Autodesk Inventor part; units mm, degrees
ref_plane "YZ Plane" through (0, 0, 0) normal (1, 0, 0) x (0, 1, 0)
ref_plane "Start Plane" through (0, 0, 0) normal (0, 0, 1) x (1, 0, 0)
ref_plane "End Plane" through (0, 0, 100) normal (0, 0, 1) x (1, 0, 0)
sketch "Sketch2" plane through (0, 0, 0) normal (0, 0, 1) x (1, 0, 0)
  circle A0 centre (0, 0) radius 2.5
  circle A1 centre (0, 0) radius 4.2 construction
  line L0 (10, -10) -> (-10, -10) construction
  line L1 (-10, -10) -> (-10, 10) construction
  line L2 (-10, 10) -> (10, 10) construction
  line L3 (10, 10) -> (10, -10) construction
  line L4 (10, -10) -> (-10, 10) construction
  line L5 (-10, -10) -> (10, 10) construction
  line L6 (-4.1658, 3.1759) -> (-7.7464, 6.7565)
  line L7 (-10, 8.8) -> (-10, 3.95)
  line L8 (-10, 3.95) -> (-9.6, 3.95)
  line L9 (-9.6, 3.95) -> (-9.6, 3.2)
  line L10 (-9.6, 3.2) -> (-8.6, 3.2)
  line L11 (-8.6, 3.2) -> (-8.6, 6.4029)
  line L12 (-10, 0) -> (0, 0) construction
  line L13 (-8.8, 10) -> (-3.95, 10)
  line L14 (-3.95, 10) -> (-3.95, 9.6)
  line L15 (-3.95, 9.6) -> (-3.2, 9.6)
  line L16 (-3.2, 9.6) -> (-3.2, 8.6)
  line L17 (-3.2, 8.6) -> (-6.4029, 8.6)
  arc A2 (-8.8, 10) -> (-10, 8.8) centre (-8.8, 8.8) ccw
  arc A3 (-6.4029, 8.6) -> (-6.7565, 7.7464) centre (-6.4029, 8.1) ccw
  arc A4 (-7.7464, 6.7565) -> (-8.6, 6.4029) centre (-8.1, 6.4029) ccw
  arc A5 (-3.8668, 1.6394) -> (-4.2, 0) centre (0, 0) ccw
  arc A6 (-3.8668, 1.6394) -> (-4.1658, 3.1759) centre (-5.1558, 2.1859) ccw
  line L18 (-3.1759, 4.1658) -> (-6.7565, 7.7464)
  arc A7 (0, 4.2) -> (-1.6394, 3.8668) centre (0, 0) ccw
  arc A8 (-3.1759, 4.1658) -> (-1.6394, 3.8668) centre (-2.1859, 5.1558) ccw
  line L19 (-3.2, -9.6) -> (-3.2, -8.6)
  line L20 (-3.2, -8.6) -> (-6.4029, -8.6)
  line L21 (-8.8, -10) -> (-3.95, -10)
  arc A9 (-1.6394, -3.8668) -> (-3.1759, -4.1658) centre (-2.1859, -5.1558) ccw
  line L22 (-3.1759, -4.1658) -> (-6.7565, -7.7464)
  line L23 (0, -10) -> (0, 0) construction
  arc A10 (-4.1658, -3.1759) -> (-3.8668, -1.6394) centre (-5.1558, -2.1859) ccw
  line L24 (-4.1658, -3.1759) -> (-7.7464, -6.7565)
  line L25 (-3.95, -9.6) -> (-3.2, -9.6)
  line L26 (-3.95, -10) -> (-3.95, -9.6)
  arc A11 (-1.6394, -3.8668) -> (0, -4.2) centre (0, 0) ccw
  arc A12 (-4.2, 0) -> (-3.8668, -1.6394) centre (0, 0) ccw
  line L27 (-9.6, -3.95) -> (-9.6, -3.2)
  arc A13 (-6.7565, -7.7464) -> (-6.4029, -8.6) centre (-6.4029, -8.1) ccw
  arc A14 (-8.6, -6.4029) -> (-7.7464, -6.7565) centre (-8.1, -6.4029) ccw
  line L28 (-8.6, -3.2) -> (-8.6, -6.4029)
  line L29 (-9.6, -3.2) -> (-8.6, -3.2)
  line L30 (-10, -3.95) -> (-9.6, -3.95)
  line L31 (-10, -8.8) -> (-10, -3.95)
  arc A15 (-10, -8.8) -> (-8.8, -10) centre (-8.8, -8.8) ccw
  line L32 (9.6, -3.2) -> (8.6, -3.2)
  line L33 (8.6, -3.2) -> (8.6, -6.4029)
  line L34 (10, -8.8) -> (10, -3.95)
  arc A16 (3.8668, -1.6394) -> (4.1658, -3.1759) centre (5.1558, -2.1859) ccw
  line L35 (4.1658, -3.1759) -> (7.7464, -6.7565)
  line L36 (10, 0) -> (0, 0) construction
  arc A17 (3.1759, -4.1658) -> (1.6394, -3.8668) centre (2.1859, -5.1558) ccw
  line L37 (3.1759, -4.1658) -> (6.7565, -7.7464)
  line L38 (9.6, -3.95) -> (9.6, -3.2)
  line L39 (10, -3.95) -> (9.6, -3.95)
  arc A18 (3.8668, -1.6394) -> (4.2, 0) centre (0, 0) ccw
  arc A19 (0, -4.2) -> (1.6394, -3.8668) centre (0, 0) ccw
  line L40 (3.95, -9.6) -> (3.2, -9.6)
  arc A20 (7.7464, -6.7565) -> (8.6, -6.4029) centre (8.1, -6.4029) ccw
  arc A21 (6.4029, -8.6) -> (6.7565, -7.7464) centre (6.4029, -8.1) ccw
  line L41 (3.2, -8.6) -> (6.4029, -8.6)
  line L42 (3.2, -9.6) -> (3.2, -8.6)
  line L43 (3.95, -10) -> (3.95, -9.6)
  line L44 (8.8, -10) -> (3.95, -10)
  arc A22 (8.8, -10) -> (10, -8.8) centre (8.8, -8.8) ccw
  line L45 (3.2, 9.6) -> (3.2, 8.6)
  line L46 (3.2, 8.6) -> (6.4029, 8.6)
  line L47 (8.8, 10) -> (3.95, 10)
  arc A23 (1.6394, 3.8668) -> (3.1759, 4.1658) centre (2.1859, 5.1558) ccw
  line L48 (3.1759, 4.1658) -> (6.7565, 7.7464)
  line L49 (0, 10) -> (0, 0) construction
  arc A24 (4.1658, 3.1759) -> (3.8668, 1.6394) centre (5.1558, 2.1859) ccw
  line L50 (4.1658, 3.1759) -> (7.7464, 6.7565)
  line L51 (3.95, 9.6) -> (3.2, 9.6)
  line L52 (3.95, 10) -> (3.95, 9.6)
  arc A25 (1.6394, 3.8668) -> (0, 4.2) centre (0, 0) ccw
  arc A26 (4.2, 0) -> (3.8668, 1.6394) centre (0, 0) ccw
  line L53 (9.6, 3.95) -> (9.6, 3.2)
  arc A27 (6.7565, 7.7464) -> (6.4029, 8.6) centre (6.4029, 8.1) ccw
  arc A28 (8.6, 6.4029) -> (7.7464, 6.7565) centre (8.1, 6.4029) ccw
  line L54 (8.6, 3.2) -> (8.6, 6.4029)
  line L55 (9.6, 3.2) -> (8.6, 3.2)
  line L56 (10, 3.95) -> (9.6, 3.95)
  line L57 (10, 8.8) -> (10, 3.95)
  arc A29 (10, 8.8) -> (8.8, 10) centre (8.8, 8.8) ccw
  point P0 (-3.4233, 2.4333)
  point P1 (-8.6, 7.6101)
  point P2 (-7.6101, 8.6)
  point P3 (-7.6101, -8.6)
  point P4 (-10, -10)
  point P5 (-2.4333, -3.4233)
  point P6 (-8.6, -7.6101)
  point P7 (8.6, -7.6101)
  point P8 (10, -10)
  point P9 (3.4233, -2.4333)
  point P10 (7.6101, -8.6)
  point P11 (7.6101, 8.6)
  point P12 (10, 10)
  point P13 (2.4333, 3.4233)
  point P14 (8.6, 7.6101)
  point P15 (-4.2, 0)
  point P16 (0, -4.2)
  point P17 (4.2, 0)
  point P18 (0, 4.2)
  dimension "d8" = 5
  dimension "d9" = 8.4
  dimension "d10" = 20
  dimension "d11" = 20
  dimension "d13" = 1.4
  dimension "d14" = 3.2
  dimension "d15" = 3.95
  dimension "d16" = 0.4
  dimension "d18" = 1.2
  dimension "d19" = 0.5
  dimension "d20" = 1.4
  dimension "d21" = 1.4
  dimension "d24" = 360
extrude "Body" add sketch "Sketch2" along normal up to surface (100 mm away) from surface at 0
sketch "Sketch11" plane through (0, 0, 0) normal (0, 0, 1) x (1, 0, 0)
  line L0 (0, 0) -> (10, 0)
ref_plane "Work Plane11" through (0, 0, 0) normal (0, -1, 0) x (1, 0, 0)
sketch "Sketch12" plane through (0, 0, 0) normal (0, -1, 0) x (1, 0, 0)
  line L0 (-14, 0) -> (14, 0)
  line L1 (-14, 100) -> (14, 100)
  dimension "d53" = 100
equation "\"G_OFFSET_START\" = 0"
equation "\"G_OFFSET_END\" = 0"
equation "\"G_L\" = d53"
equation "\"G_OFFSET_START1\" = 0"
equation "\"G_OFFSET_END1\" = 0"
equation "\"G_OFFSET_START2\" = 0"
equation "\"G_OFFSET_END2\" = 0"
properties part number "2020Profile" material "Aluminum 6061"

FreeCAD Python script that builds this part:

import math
import FreeCAD as App
import Part
import Sketcher

doc = App.newDocument("Part")
params = doc.addObject("Spreadsheet::Sheet", "Params")
for row, (alias, value) in enumerate([
    ("sketch1_diameter", "5 mm"),
    ("sketch1_radius", "1.4 mm"),
    ("sketch1_radius2", "4.2 mm"),
    ("sketch1_radius3", "0.5 mm"),
    ("sketch1_radius4", "1.2 mm"),
    ("pad1_length", "100 mm"),
], start=1):
    params.set(f"A{row}", alias)
    params.set(f"B{row}", "=" + value)
    params.setAlias(f"B{row}", alias)

body = doc.addObject("PartDesign::Body", "Body")

# Sketch on XY plane
sketch1 = doc.addObject("Sketcher::SketchObject", "Sketch")
body.addObject(sketch1)
sketch1.AttachmentSupport = (doc.XY_Plane, [""])
sketch1.MapMode = "FlatFace"
sketch1.addGeometry([
    Part.LineSegment(App.Vector(-7.7464, 6.7565, 0), App.Vector(-4.1658, 3.1759, 0)),  # 0
    Part.ArcOfCircle(Part.Circle(App.Vector(-5.1558, 2.1859, 0), App.Vector(0, 0, 1), 1.400065), math.radians(-22.975588), math.radians(45)),  # 1
    Part.ArcOfCircle(Part.Circle(App.Vector(0, 0, 0), App.Vector(0, 0, 1), 4.2), math.radians(157.024603), math.radians(180)),  # 2
    Part.ArcOfCircle(Part.Circle(App.Vector(0, 0, 0), App.Vector(0, 0, 1), 4.199973), math.radians(180), math.radians(202.975397)),  # 3
    Part.ArcOfCircle(Part.Circle(App.Vector(-5.1558, -2.1859, 0), App.Vector(0, 0, 1), 1.400071), math.radians(-45), math.radians(22.975588)),  # 4
    Part.LineSegment(App.Vector(-4.1658, -3.1759, 0), App.Vector(-7.7464, -6.7565, 0)),  # 5
    Part.ArcOfCircle(Part.Circle(App.Vector(-8.1, -6.4029, 0), App.Vector(0, 0, 1), 0.5), math.radians(180), math.radians(315)),  # 6
    Part.LineSegment(App.Vector(-8.6, -6.4029, 0), App.Vector(-8.6, -3.2, 0)),  # 7
    Part.LineSegment(App.Vector(-8.6, -3.2, 0), App.Vector(-9.6, -3.2, 0)),  # 8
    Part.LineSegment(App.Vector(-9.6, -3.2, 0), App.Vector(-9.6, -3.95, 0)),  # 9
    Part.LineSegment(App.Vector(-9.6, -3.95, 0), App.Vector(-10, -3.95, 0)),  # 10
    Part.LineSegment(App.Vector(-10, -3.95, 0), App.Vector(-10, -8.8, 0)),  # 11
    Part.ArcOfCircle(Part.Circle(App.Vector(-8.8, -8.8, 0), App.Vector(0, 0, 1), 1.2), math.radians(180), math.radians(270)),  # 12
    Part.LineSegment(App.Vector(-8.8, -10, 0), App.Vector(-3.95, -10, 0)),  # 13
    Part.LineSegment(App.Vector(-3.95, -10, 0), App.Vector(-3.95, -9.6, 0)),  # 14
    Part.LineSegment(App.Vector(-3.95, -9.6, 0), App.Vector(-3.2, -9.6, 0)),  # 15
    Part.LineSegment(App.Vector(-3.2, -9.6, 0), App.Vector(-3.2, -8.6, 0)),  # 16
    Part.LineSegment(App.Vector(-3.2, -8.6, 0), App.Vector(-6.4029, -8.6, 0)),  # 17
    Part.ArcOfCircle(Part.Circle(App.Vector(-6.4029, -8.1, 0), App.Vector(0, 0, 1), 0.500066), math.radians(135), math.radians(270)),  # 18
    Part.LineSegment(App.Vector(-6.7565, -7.7464, 0), App.Vector(-3.1759, -4.1658, 0)),  # 19
    Part.ArcOfCircle(Part.Circle(App.Vector(-2.1859, -5.1558, 0), App.Vector(0, 0, 1), 1.400065), math.radians(67.024412), math.radians(135)),  # 20
    Part.ArcOfCircle(Part.Circle(App.Vector(0, 0, 0), App.Vector(0, 0, 1), 4.2), math.radians(-112.975397), math.radians(-90)),  # 21
    Part.ArcOfCircle(Part.Circle(App.Vector(0, 0, 0), App.Vector(0, 0, 1), 4.199973), math.radians(-90), math.radians(-67.024603)),  # 22
    Part.ArcOfCircle(Part.Circle(App.Vector(2.1859, -5.1558, 0), App.Vector(0, 0, 1), 1.400071), math.radians(45), math.radians(112.975588)),  # 23
    Part.LineSegment(App.Vector(3.1759, -4.1658, 0), App.Vector(6.7565, -7.7464, 0)),  # 24
    Part.ArcOfCircle(Part.Circle(App.Vector(6.4029, -8.1, 0), App.Vector(0, 0, 1), 0.5), math.radians(-90), math.radians(45)),  # 25
    Part.LineSegment(App.Vector(6.4029, -8.6, 0), App.Vector(3.2, -8.6, 0)),  # 26
    Part.LineSegment(App.Vector(3.2, -8.6, 0), App.Vector(3.2, -9.6, 0)),  # 27
    Part.LineSegment(App.Vector(3.2, -9.6, 0), App.Vector(3.95, -9.6, 0)),  # 28
    Part.LineSegment(App.Vector(3.95, -9.6, 0), App.Vector(3.95, -10, 0)),  # 29
    Part.LineSegment(App.Vector(3.95, -10, 0), App.Vector(8.8, -10, 0)),  # 30
    Part.ArcOfCircle(Part.Circle(App.Vector(8.8, -8.8, 0), App.Vector(0, 0, 1), 1.2), math.radians(-90), math.radians(0)),  # 31
    Part.LineSegment(App.Vector(10, -8.8, 0), App.Vector(10, -3.95, 0)),  # 32
    Part.LineSegment(App.Vector(10, -3.95, 0), App.Vector(9.6, -3.95, 0)),  # 33
    Part.LineSegment(App.Vector(9.6, -3.95, 0), App.Vector(9.6, -3.2, 0)),  # 34
    Part.LineSegment(App.Vector(9.6, -3.2, 0), App.Vector(8.6, -3.2, 0)),  # 35
    Part.LineSegment(App.Vector(8.6, -3.2, 0), App.Vector(8.6, -6.4029, 0)),  # 36
    Part.ArcOfCircle(Part.Circle(App.Vector(8.1, -6.4029, 0), App.Vector(0, 0, 1), 0.500066), math.radians(-135), math.radians(0)),  # 37
    Part.LineSegment(App.Vector(7.7464, -6.7565, 0), App.Vector(4.1658, -3.1759, 0)),  # 38
    Part.ArcOfCircle(Part.Circle(App.Vector(5.1558, -2.1859, 0), App.Vector(0, 0, 1), 1.400065), math.radians(157.024412), math.radians(225)),  # 39
    Part.ArcOfCircle(Part.Circle(App.Vector(0, 0, 0), App.Vector(0, 0, 1), 4.2), math.radians(-22.975397), math.radians(0)),  # 40
    Part.ArcOfCircle(Part.Circle(App.Vector(0, 0, 0), App.Vector(0, 0, 1), 4.199973), math.radians(0), math.radians(22.975397)),  # 41
    Part.ArcOfCircle(Part.Circle(App.Vector(5.1558, 2.1859, 0), App.Vector(0, 0, 1), 1.400071), math.radians(135), math.radians(202.975588)),  # 42
    Part.LineSegment(App.Vector(4.1658, 3.1759, 0), App.Vector(7.7464, 6.7565, 0)),  # 43
    Part.ArcOfCircle(Part.Circle(App.Vector(8.1, 6.4029, 0), App.Vector(0, 0, 1), 0.5), math.radians(0), math.radians(135)),  # 44
    Part.LineSegment(App.Vector(8.6, 6.4029, 0), App.Vector(8.6, 3.2, 0)),  # 45
    Part.LineSegment(App.Vector(8.6, 3.2, 0), App.Vector(9.6, 3.2, 0)),  # 46
    Part.LineSegment(App.Vector(9.6, 3.2, 0), App.Vector(9.6, 3.95, 0)),  # 47
    Part.LineSegment(App.Vector(9.6, 3.95, 0), App.Vector(10, 3.95, 0)),  # 48
    Part.LineSegment(App.Vector(10, 3.95, 0), App.Vector(10, 8.8, 0)),  # 49
    Part.ArcOfCircle(Part.Circle(App.Vector(8.8, 8.8, 0), App.Vector(0, 0, 1), 1.2), math.radians(0), math.radians(90)),  # 50
    Part.LineSegment(App.Vector(8.8, 10, 0), App.Vector(3.95, 10, 0)),  # 51
    Part.LineSegment(App.Vector(3.95, 10, 0), App.Vector(3.95, 9.6, 0)),  # 52
    Part.LineSegment(App.Vector(3.95, 9.6, 0), App.Vector(3.2, 9.6, 0)),  # 53
    Part.LineSegment(App.Vector(3.2, 9.6, 0), App.Vector(3.2, 8.6, 0)),  # 54
    Part.LineSegment(App.Vector(3.2, 8.6, 0), App.Vector(6.4029, 8.6, 0)),  # 55
    Part.ArcOfCircle(Part.Circle(App.Vector(6.4029, 8.1, 0), App.Vector(0, 0, 1), 0.500066), math.radians(-45), math.radians(90)),  # 56
    Part.LineSegment(App.Vector(6.7565, 7.7464, 0), App.Vector(3.1759, 4.1658, 0)),  # 57
    Part.ArcOfCircle(Part.Circle(App.Vector(2.1859, 5.1558, 0), App.Vector(0, 0, 1), 1.400065), math.radians(-112.975588), math.radians(-45)),  # 58
    Part.ArcOfCircle(Part.Circle(App.Vector(0, 0, 0), App.Vector(0, 0, 1), 4.2), math.radians(67.024603), math.radians(90)),  # 59
    Part.ArcOfCircle(Part.Circle(App.Vector(0, 0, 0), App.Vector(0, 0, 1), 4.199973), math.radians(90), math.radians(112.975397)),  # 60
    Part.ArcOfCircle(Part.Circle(App.Vector(-2.1859, 5.1558, 0), App.Vector(0, 0, 1), 1.400071), math.radians(-135), math.radians(-67.024412)),  # 61
    Part.LineSegment(App.Vector(-3.1759, 4.1658, 0), App.Vector(-6.7565, 7.7464, 0)),  # 62
    Part.ArcOfCircle(Part.Circle(App.Vector(-6.4029, 8.1, 0), App.Vector(0, 0, 1), 0.5), math.radians(90), math.radians(225)),  # 63
    Part.LineSegment(App.Vector(-6.4029, 8.6, 0), App.Vector(-3.2, 8.6, 0)),  # 64
    Part.LineSegment(App.Vector(-3.2, 8.6, 0), App.Vector(-3.2, 9.6, 0)),  # 65
    Part.LineSegment(App.Vector(-3.2, 9.6, 0), App.Vector(-3.95, 9.6, 0)),  # 66
    Part.LineSegment(App.Vector(-3.95, 9.6, 0), App.Vector(-3.95, 10, 0)),  # 67
    Part.LineSegment(App.Vector(-3.95, 10, 0), App.Vector(-8.8, 10, 0)),  # 68
    Part.ArcOfCircle(Part.Circle(App.Vector(-8.8, 8.8, 0), App.Vector(0, 0, 1), 1.2), math.radians(90), math.radians(180)),  # 69
    Part.LineSegment(App.Vector(-10, 8.8, 0), App.Vector(-10, 3.95, 0)),  # 70
    Part.LineSegment(App.Vector(-10, 3.95, 0), App.Vector(-9.6, 3.95, 0)),  # 71
    Part.LineSegment(App.Vector(-9.6, 3.95, 0), App.Vector(-9.6, 3.2, 0)),  # 72
    Part.LineSegment(App.Vector(-9.6, 3.2, 0), App.Vector(-8.6, 3.2, 0)),  # 73
    Part.LineSegment(App.Vector(-8.6, 3.2, 0), App.Vector(-8.6, 6.4029, 0)),  # 74
    Part.ArcOfCircle(Part.Circle(App.Vector(-8.1, 6.4029, 0), App.Vector(0, 0, 1), 0.500066), math.radians(45), math.radians(180)),  # 75
    Part.Circle(App.Vector(0, 0, 0), App.Vector(0, 0, 1), 2.5),  # 76
], False)
sketch1.addConstraint([
    Sketcher.Constraint("Tangent", 0, 2, 1, 2),
    Sketcher.Constraint("Tangent", 1, 1, 2, 1),
    Sketcher.Constraint("Tangent", 2, 2, 3, 1),
    Sketcher.Constraint("Tangent", 3, 2, 4, 2),
    Sketcher.Constraint("Tangent", 4, 1, 5, 1),
    Sketcher.Constraint("Tangent", 5, 2, 6, 2),
    Sketcher.Constraint("Tangent", 6, 1, 7, 1),
    Sketcher.Constraint("Coincident", 7, 2, 8, 1),
    Sketcher.Constraint("Coincident", 8, 2, 9, 1),
    Sketcher.Constraint("Coincident", 9, 2, 10, 1),
    Sketcher.Constraint("Coincident", 10, 2, 11, 1),
    Sketcher.Constraint("Tangent", 11, 2, 12, 1),
    Sketcher.Constraint("Tangent", 12, 2, 13, 1),
    Sketcher.Constraint("Coincident", 13, 2, 14, 1),
    Sketcher.Constraint("Coincident", 14, 2, 15, 1),
    Sketcher.Constraint("Coincident", 15, 2, 16, 1),
    Sketcher.Constraint("Coincident", 16, 2, 17, 1),
    Sketcher.Constraint("Tangent", 17, 2, 18, 2),
    Sketcher.Constraint("Tangent", 18, 1, 19, 1),
    Sketcher.Constraint("Tangent", 19, 2, 20, 2),
    Sketcher.Constraint("Tangent", 20, 1, 21, 1),
    Sketcher.Constraint("Tangent", 21, 2, 22, 1),
    Sketcher.Constraint("Tangent", 22, 2, 23, 2),
    Sketcher.Constraint("Tangent", 23, 1, 24, 1),
    Sketcher.Constraint("Tangent", 24, 2, 25, 2),
    Sketcher.Constraint("Tangent", 25, 1, 26, 1),
    Sketcher.Constraint("Coincident", 26, 2, 27, 1),
    Sketcher.Constraint("Coincident", 27, 2, 28, 1),
    Sketcher.Constraint("Coincident", 28, 2, 29, 1),
    Sketcher.Constraint("Coincident", 29, 2, 30, 1),
    Sketcher.Constraint("Tangent", 30, 2, 31, 1),
    Sketcher.Constraint("Tangent", 31, 2, 32, 1),
    Sketcher.Constraint("Coincident", 32, 2, 33, 1),
    Sketcher.Constraint("Coincident", 33, 2, 34, 1),
    Sketcher.Constraint("Coincident", 34, 2, 35, 1),
    Sketcher.Constraint("Coincident", 35, 2, 36, 1),
    Sketcher.Constraint("Tangent", 36, 2, 37, 2),
    Sketcher.Constraint("Tangent", 37, 1, 38, 1),
    Sketcher.Constraint("Tangent", 38, 2, 39, 2),
    Sketcher.Constraint("Tangent", 39, 1, 40, 1),
    Sketcher.Constraint("Tangent", 40, 2, 41, 1),
    Sketcher.Constraint("Tangent", 41, 2, 42, 2),
    Sketcher.Constraint("Tangent", 42, 1, 43, 1),
    Sketcher.Constraint("Tangent", 43, 2, 44, 2),
    Sketcher.Constraint("Tangent", 44, 1, 45, 1),
    Sketcher.Constraint("Coincident", 45, 2, 46, 1),
    Sketcher.Constraint("Coincident", 46, 2, 47, 1),
    Sketcher.Constraint("Coincident", 47, 2, 48, 1),
    Sketcher.Constraint("Coincident", 48, 2, 49, 1),
    Sketcher.Constraint("Tangent", 49, 2, 50, 1),
    Sketcher.Constraint("Tangent", 50, 2, 51, 1),
    Sketcher.Constraint("Coincident", 51, 2, 52, 1),
    Sketcher.Constraint("Coincident", 52, 2, 53, 1),
    Sketcher.Constraint("Coincident", 53, 2, 54, 1),
    Sketcher.Constraint("Coincident", 54, 2, 55, 1),
    Sketcher.Constraint("Tangent", 55, 2, 56, 2),
    Sketcher.Constraint("Tangent", 56, 1, 57, 1),
    Sketcher.Constraint("Tangent", 57, 2, 58, 2),
    Sketcher.Constraint("Tangent", 58, 1, 59, 1),
    Sketcher.Constraint("Tangent", 59, 2, 60, 1),
    Sketcher.Constraint("Tangent", 60, 2, 61, 2),
    Sketcher.Constraint("Tangent", 61, 1, 62, 1),
    Sketcher.Constraint("Tangent", 62, 2, 63, 2),
    Sketcher.Constraint("Tangent", 63, 1, 64, 1),
    Sketcher.Constraint("Coincident", 64, 2, 65, 1),
    Sketcher.Constraint("Coincident", 65, 2, 66, 1),
    Sketcher.Constraint("Coincident", 66, 2, 67, 1),
    Sketcher.Constraint("Coincident", 67, 2, 68, 1),
    Sketcher.Constraint("Tangent", 68, 2, 69, 1),
    Sketcher.Constraint("Tangent", 69, 2, 70, 1),
    Sketcher.Constraint("Coincident", 70, 2, 71, 1),
    Sketcher.Constraint("Coincident", 71, 2, 72, 1),
    Sketcher.Constraint("Coincident", 72, 2, 73, 1),
    Sketcher.Constraint("Coincident", 73, 2, 74, 1),
    Sketcher.Constraint("Tangent", 74, 2, 75, 2),
    Sketcher.Constraint("Tangent", 75, 1, 0, 1),
    Sketcher.Constraint("Vertical", 7),
    Sketcher.Constraint("Horizontal", 8),
    Sketcher.Constraint("Vertical", 9),
    Sketcher.Constraint("Horizontal", 10),
    Sketcher.Constraint("Vertical", 11),
    Sketcher.Constraint("Horizontal", 13),
    Sketcher.Constraint("Vertical", 14),
    Sketcher.Constraint("Horizontal", 15),
    Sketcher.Constraint("Vertical", 16),
    Sketcher.Constraint("Horizontal", 17),
    Sketcher.Constraint("Horizontal", 26),
    Sketcher.Constraint("Vertical", 27),
    Sketcher.Constraint("Horizontal", 28),
    Sketcher.Constraint("Vertical", 29),
    Sketcher.Constraint("Horizontal", 30),
    Sketcher.Constraint("Vertical", 32),
    Sketcher.Constraint("Horizontal", 33),
    Sketcher.Constraint("Vertical", 34),
    Sketcher.Constraint("Horizontal", 35),
    Sketcher.Constraint("Vertical", 36),
    Sketcher.Constraint("Vertical", 45),
    Sketcher.Constraint("Horizontal", 46),
    Sketcher.Constraint("Vertical", 47),
    Sketcher.Constraint("Horizontal", 48),
    Sketcher.Constraint("Vertical", 49),
    Sketcher.Constraint("Horizontal", 51),
    Sketcher.Constraint("Vertical", 52),
    Sketcher.Constraint("Horizontal", 53),
    Sketcher.Constraint("Vertical", 54),
    Sketcher.Constraint("Horizontal", 55),
    Sketcher.Constraint("Horizontal", 64),
    Sketcher.Constraint("Vertical", 65),
    Sketcher.Constraint("Horizontal", 66),
    Sketcher.Constraint("Vertical", 67),
    Sketcher.Constraint("Horizontal", 68),
    Sketcher.Constraint("Vertical", 70),
    Sketcher.Constraint("Horizontal", 71),
    Sketcher.Constraint("Vertical", 72),
    Sketcher.Constraint("Horizontal", 73),
    Sketcher.Constraint("Vertical", 74),
    Sketcher.Constraint("Coincident", 2, 3, -1, 1),
    Sketcher.Constraint("Coincident", 21, 3, -1, 1),
    Sketcher.Constraint("Coincident", 40, 3, -1, 1),
    Sketcher.Constraint("Coincident", 59, 3, -1, 1),
    Sketcher.Constraint("Coincident", 76, 3, -1, 1),
    Sketcher.Constraint("Equal", 2, 3),
    Sketcher.Constraint("Equal", 1, 4),
    Sketcher.Constraint("Equal", 6, 18),
    Sketcher.Constraint("Equal", 4, 20),
    Sketcher.Constraint("Equal", 3, 21),
    Sketcher.Constraint("Equal", 21, 22),
    Sketcher.Constraint("Equal", 20, 23),
    Sketcher.Constraint("Equal", 18, 25),
    Sketcher.Constraint("Equal", 12, 31),
    Sketcher.Constraint("Equal", 25, 37),
    Sketcher.Constraint("Equal", 23, 39),
    Sketcher.Constraint("Equal", 22, 40),
    Sketcher.Constraint("Equal", 40, 41),
    Sketcher.Constraint("Equal", 39, 42),
    Sketcher.Constraint("Equal", 37, 44),
    Sketcher.Constraint("Equal", 31, 50),
    Sketcher.Constraint("Equal", 44, 56),
    Sketcher.Constraint("Equal", 42, 58),
    Sketcher.Constraint("Equal", 41, 59),
    Sketcher.Constraint("Equal", 59, 60),
    Sketcher.Constraint("Equal", 58, 61),
    Sketcher.Constraint("Equal", 56, 63),
    Sketcher.Constraint("Equal", 50, 69),
    Sketcher.Constraint("Equal", 63, 75),
    Sketcher.Constraint("Symmetric", 6, 3, 44, 3, -1, 1),
    Sketcher.Constraint("Symmetric", 12, 3, 50, 3, -1, 1),
    Sketcher.Constraint("Symmetric", 18, 3, 56, 3, -1, 1),
    Sketcher.Constraint("Symmetric", 25, 3, 63, 3, -1, 1),
    Sketcher.Constraint("Symmetric", 31, 3, 69, 3, -1, 1),
    Sketcher.Constraint("Symmetric", 37, 3, 75, 3, -1, 1),
    Sketcher.Constraint("Symmetric", 8, 2, 46, 2, -1, 1),
    Sketcher.Constraint("Symmetric", 14, 2, 52, 2, -1, 1),
    Sketcher.Constraint("Symmetric", 27, 2, 65, 2, -1, 1),
    Sketcher.Constraint("Symmetric", 33, 2, 71, 2, -1, 1),
    Sketcher.Constraint("Symmetric", 18, 3, 25, 3, -2),
    Sketcher.Constraint("Symmetric", 12, 3, 31, 3, -2),
    Sketcher.Constraint("Symmetric", 6, 3, 37, 3, -2),
    Sketcher.Constraint("Symmetric", 15, 2, 27, 2, -2),
    Sketcher.Constraint("Symmetric", 9, 2, 33, 2, -2),
    Sketcher.Constraint("PointOnObject", 2, 2, -1),
    Sketcher.Constraint("PointOnObject", 21, 2, -2),
    Sketcher.Constraint("PointOnObject", 40, 2, -1),
    Sketcher.Constraint("PointOnObject", 59, 2, -2),
    Sketcher.Constraint("Perpendicular", 0, 5),
    Sketcher.Constraint("Parallel", 5, 19),
    Sketcher.Constraint("Perpendicular", 19, 24),
    Sketcher.Constraint("Parallel", 24, 38),
    Sketcher.Constraint("Perpendicular", 38, 43),
    Sketcher.Constraint("Parallel", 43, 57),
    Sketcher.Constraint("Perpendicular", 57, 62),
    Sketcher.Constraint("Horizontal", 20, 3, 23, 3),
    Sketcher.Constraint("Horizontal", 8, 2, 34, 2),
    Sketcher.Constraint("Horizontal", 48, 2, 70, 2),
    Sketcher.Constraint("Horizontal", 46, 2, 72, 2),
    Sketcher.Constraint("Vertical", 29, 2, 51, 2),
    Sketcher.Constraint("Vertical", 27, 2, 53, 2),
    Sketcher.Constraint("Vertical", 14, 2, 66, 2),
    Sketcher.Constraint("Equal", 64, 7),
    Sketcher.Constraint("Equal", 66, 9),
    Sketcher.Constraint("Equal", 68, 11),
    Sketcher.Constraint("Equal", 71, 14),
    Sketcher.Constraint("Equal", 73, 16),
    Sketcher.Constraint("Equal", 5, 19),
    Sketcher.Constraint("Diameter", 76, 5.0),
    Sketcher.Constraint("Radius", 1, 1.4),
    Sketcher.Constraint("Radius", 2, 4.2),
    Sketcher.Constraint("Radius", 6, 0.5),
    Sketcher.Constraint("Radius", 12, 1.2),
    Sketcher.Constraint("DistanceX", 10, 2, 10, 1, 0.4),
    Sketcher.Constraint("DistanceY", 7, 2, -1, 1, 3.2),
    Sketcher.Constraint("DistanceX", 8, 2, 8, 1, 1.0),
    Sketcher.Constraint("DistanceY", 9, 2, -1, 1, 3.95),
    Sketcher.Constraint("DistanceX", 10, 2, -1, 1, 10.0),
    Sketcher.Constraint("DistanceX", 17, 2, 17, 1, 3.203),
])
sketch1.setExpression("Constraints[184]", "Params.sketch1_diameter")
sketch1.setExpression("Constraints[185]", "Params.sketch1_radius")
sketch1.setExpression("Constraints[186]", "Params.sketch1_radius2")
sketch1.setExpression("Constraints[187]", "Params.sketch1_radius3")
sketch1.setExpression("Constraints[188]", "Params.sketch1_radius4")
pad1 = doc.addObject("PartDesign::Pad", "Pad")
body.addObject(pad1)
pad1.Profile = sketch1
pad1.setExpression("Length", "Params.pad1_length")

doc.recompute()
